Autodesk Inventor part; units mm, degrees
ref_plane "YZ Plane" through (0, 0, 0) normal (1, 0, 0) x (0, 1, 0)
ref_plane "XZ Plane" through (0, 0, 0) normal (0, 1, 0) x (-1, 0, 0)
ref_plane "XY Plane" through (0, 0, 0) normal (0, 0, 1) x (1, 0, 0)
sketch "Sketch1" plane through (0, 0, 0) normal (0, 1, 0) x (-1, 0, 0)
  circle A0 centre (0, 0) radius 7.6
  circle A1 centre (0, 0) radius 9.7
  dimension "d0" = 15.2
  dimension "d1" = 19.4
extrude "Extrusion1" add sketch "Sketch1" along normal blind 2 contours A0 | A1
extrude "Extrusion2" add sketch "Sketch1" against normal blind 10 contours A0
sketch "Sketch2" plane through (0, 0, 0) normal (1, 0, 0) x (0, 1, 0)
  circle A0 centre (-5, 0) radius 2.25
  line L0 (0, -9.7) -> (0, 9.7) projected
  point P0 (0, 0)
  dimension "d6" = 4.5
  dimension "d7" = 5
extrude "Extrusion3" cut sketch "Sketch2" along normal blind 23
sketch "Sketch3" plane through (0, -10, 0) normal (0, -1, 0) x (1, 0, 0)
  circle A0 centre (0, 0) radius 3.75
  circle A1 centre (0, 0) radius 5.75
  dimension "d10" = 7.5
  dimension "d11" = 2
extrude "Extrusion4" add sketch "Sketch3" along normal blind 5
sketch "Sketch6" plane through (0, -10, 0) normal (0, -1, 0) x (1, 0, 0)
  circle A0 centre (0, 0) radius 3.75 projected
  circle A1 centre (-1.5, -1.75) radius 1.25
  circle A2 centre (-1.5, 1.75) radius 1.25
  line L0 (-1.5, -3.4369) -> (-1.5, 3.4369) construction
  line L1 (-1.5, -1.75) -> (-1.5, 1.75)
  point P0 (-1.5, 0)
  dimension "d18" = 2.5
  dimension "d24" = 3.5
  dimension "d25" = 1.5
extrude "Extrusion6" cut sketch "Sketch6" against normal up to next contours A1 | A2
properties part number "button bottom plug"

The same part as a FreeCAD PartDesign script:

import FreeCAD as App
import Part
import Sketcher
Q = App.Units.Quantity

doc = App.newDocument("Part")
body = doc.addObject("PartDesign::Body", "Body")

sketch1 = body.newObject("Sketcher::SketchObject", "Sketch")
sketch1.AttachmentSupport = (doc.getObject("XZ_Plane"), [""])
sketch1.MapMode = "FlatFace"
sketch1.addGeometry(Part.Circle(App.Vector(0, 0, 0), App.Vector(0, 0, 1), 10), False)
sketch1.addConstraint([
    Sketcher.Constraint("Coincident", 0, 3, -1, 1),
    Sketcher.Constraint("Diameter", 0, Q("19.4 mm")),
])
pad1 = body.newObject("PartDesign::Pad", "Pad")
pad1.Profile = sketch1
pad1.Length = 2
pad1.Reversed = True

sketch2 = body.newObject("Sketcher::SketchObject", "Sketch001")
sketch2.AttachmentSupport = (doc.getObject("XZ_Plane"), [""])
sketch2.MapMode = "FlatFace"
sketch2.addGeometry(Part.Circle(App.Vector(0, 0, 0), App.Vector(0, 0, 1), 8), False)
sketch2.addConstraint([
    Sketcher.Constraint("Coincident", 0, 3, -1, 1),
    Sketcher.Constraint("Diameter", 0, Q("15.2 mm")),
])
pad2 = body.newObject("PartDesign::Pad", "Pad001")
pad2.Profile = sketch2
pad2.Length = 10

sketch3 = body.newObject("Sketcher::SketchObject", "Sketch002")
sketch3.AttachmentSupport = (doc.getObject("YZ_Plane"), [""])
sketch3.MapMode = "FlatFace"
sketch3.addGeometry(Part.Circle(App.Vector(-5, 0, 0), App.Vector(0, 0, 1), 2.2), False)
sketch3.addConstraint([
    Sketcher.Constraint("PointOnObject", 0, 3, -1),
    Sketcher.Constraint("Diameter", 0, Q("4.5 mm")),
    Sketcher.Constraint("DistanceX", 0, 3, -1, 1, Q("5 mm")),
])
pocket1 = body.newObject("PartDesign::Pocket", "Pocket")
pocket1.Profile = sketch3
pocket1.Length = 23
pocket1.Reversed = True

sketch4 = body.newObject("Sketcher::SketchObject", "Sketch003")
sketch4.AttachmentSupport = (doc.getObject("XZ_Plane"), [""])
sketch4.MapMode = "FlatFace"
sketch4.AttachmentOffset = App.Placement(App.Vector(0, 0, 10), App.Rotation())
sketch4.addGeometry([
    Part.Circle(App.Vector(0, 0, 0), App.Vector(0, 0, 1), 5.8),
    Part.Circle(App.Vector(0, 0, 0), App.Vector(0, 0, 1), 3.8),
], False)
sketch4.addConstraint([
    Sketcher.Constraint("Coincident", 0, 3, -1, 1),
    Sketcher.Constraint("Coincident", 1, 3, -1, 1),
    Sketcher.Constraint("Diameter", 1, Q("7.5 mm")),
    Sketcher.Constraint("Diameter", 0, Q("11.5 mm")),
])
pad3 = body.newObject("PartDesign::Pad", "Pad002")
pad3.Profile = sketch4
pad3.Length = 5

sketch5 = body.newObject("Sketcher::SketchObject", "Sketch004")
sketch5.AttachmentSupport = (doc.getObject("XZ_Plane"), [""])
sketch5.MapMode = "FlatFace"
sketch5.AttachmentOffset = App.Placement(App.Vector(0, 0, 10), App.Rotation())
sketch5.addGeometry([
    Part.Circle(App.Vector(-1.5, -1.8, 0), App.Vector(0, 0, 1), 1.2),
    Part.Circle(App.Vector(-1.5, 1.8, 0), App.Vector(0, 0, 1), 1.2),
], False)
sketch5.addConstraint([
    Sketcher.Constraint("Equal", 0, 1),
    Sketcher.Constraint("Symmetric", 0, 3, 1, 3, -1),
    Sketcher.Constraint("Diameter", 0, Q("2.5 mm")),
    Sketcher.Constraint("DistanceX", 0, 3, -1, 1, Q("1.5 mm")),
    Sketcher.Constraint("DistanceY", 0, 3, 1, 3, Q("3.5 mm")),
])
pocket2 = body.newObject("PartDesign::Pocket", "Pocket001")
pocket2.Profile = sketch5
pocket2.Type = "UpToFirst"

doc.recompute()
